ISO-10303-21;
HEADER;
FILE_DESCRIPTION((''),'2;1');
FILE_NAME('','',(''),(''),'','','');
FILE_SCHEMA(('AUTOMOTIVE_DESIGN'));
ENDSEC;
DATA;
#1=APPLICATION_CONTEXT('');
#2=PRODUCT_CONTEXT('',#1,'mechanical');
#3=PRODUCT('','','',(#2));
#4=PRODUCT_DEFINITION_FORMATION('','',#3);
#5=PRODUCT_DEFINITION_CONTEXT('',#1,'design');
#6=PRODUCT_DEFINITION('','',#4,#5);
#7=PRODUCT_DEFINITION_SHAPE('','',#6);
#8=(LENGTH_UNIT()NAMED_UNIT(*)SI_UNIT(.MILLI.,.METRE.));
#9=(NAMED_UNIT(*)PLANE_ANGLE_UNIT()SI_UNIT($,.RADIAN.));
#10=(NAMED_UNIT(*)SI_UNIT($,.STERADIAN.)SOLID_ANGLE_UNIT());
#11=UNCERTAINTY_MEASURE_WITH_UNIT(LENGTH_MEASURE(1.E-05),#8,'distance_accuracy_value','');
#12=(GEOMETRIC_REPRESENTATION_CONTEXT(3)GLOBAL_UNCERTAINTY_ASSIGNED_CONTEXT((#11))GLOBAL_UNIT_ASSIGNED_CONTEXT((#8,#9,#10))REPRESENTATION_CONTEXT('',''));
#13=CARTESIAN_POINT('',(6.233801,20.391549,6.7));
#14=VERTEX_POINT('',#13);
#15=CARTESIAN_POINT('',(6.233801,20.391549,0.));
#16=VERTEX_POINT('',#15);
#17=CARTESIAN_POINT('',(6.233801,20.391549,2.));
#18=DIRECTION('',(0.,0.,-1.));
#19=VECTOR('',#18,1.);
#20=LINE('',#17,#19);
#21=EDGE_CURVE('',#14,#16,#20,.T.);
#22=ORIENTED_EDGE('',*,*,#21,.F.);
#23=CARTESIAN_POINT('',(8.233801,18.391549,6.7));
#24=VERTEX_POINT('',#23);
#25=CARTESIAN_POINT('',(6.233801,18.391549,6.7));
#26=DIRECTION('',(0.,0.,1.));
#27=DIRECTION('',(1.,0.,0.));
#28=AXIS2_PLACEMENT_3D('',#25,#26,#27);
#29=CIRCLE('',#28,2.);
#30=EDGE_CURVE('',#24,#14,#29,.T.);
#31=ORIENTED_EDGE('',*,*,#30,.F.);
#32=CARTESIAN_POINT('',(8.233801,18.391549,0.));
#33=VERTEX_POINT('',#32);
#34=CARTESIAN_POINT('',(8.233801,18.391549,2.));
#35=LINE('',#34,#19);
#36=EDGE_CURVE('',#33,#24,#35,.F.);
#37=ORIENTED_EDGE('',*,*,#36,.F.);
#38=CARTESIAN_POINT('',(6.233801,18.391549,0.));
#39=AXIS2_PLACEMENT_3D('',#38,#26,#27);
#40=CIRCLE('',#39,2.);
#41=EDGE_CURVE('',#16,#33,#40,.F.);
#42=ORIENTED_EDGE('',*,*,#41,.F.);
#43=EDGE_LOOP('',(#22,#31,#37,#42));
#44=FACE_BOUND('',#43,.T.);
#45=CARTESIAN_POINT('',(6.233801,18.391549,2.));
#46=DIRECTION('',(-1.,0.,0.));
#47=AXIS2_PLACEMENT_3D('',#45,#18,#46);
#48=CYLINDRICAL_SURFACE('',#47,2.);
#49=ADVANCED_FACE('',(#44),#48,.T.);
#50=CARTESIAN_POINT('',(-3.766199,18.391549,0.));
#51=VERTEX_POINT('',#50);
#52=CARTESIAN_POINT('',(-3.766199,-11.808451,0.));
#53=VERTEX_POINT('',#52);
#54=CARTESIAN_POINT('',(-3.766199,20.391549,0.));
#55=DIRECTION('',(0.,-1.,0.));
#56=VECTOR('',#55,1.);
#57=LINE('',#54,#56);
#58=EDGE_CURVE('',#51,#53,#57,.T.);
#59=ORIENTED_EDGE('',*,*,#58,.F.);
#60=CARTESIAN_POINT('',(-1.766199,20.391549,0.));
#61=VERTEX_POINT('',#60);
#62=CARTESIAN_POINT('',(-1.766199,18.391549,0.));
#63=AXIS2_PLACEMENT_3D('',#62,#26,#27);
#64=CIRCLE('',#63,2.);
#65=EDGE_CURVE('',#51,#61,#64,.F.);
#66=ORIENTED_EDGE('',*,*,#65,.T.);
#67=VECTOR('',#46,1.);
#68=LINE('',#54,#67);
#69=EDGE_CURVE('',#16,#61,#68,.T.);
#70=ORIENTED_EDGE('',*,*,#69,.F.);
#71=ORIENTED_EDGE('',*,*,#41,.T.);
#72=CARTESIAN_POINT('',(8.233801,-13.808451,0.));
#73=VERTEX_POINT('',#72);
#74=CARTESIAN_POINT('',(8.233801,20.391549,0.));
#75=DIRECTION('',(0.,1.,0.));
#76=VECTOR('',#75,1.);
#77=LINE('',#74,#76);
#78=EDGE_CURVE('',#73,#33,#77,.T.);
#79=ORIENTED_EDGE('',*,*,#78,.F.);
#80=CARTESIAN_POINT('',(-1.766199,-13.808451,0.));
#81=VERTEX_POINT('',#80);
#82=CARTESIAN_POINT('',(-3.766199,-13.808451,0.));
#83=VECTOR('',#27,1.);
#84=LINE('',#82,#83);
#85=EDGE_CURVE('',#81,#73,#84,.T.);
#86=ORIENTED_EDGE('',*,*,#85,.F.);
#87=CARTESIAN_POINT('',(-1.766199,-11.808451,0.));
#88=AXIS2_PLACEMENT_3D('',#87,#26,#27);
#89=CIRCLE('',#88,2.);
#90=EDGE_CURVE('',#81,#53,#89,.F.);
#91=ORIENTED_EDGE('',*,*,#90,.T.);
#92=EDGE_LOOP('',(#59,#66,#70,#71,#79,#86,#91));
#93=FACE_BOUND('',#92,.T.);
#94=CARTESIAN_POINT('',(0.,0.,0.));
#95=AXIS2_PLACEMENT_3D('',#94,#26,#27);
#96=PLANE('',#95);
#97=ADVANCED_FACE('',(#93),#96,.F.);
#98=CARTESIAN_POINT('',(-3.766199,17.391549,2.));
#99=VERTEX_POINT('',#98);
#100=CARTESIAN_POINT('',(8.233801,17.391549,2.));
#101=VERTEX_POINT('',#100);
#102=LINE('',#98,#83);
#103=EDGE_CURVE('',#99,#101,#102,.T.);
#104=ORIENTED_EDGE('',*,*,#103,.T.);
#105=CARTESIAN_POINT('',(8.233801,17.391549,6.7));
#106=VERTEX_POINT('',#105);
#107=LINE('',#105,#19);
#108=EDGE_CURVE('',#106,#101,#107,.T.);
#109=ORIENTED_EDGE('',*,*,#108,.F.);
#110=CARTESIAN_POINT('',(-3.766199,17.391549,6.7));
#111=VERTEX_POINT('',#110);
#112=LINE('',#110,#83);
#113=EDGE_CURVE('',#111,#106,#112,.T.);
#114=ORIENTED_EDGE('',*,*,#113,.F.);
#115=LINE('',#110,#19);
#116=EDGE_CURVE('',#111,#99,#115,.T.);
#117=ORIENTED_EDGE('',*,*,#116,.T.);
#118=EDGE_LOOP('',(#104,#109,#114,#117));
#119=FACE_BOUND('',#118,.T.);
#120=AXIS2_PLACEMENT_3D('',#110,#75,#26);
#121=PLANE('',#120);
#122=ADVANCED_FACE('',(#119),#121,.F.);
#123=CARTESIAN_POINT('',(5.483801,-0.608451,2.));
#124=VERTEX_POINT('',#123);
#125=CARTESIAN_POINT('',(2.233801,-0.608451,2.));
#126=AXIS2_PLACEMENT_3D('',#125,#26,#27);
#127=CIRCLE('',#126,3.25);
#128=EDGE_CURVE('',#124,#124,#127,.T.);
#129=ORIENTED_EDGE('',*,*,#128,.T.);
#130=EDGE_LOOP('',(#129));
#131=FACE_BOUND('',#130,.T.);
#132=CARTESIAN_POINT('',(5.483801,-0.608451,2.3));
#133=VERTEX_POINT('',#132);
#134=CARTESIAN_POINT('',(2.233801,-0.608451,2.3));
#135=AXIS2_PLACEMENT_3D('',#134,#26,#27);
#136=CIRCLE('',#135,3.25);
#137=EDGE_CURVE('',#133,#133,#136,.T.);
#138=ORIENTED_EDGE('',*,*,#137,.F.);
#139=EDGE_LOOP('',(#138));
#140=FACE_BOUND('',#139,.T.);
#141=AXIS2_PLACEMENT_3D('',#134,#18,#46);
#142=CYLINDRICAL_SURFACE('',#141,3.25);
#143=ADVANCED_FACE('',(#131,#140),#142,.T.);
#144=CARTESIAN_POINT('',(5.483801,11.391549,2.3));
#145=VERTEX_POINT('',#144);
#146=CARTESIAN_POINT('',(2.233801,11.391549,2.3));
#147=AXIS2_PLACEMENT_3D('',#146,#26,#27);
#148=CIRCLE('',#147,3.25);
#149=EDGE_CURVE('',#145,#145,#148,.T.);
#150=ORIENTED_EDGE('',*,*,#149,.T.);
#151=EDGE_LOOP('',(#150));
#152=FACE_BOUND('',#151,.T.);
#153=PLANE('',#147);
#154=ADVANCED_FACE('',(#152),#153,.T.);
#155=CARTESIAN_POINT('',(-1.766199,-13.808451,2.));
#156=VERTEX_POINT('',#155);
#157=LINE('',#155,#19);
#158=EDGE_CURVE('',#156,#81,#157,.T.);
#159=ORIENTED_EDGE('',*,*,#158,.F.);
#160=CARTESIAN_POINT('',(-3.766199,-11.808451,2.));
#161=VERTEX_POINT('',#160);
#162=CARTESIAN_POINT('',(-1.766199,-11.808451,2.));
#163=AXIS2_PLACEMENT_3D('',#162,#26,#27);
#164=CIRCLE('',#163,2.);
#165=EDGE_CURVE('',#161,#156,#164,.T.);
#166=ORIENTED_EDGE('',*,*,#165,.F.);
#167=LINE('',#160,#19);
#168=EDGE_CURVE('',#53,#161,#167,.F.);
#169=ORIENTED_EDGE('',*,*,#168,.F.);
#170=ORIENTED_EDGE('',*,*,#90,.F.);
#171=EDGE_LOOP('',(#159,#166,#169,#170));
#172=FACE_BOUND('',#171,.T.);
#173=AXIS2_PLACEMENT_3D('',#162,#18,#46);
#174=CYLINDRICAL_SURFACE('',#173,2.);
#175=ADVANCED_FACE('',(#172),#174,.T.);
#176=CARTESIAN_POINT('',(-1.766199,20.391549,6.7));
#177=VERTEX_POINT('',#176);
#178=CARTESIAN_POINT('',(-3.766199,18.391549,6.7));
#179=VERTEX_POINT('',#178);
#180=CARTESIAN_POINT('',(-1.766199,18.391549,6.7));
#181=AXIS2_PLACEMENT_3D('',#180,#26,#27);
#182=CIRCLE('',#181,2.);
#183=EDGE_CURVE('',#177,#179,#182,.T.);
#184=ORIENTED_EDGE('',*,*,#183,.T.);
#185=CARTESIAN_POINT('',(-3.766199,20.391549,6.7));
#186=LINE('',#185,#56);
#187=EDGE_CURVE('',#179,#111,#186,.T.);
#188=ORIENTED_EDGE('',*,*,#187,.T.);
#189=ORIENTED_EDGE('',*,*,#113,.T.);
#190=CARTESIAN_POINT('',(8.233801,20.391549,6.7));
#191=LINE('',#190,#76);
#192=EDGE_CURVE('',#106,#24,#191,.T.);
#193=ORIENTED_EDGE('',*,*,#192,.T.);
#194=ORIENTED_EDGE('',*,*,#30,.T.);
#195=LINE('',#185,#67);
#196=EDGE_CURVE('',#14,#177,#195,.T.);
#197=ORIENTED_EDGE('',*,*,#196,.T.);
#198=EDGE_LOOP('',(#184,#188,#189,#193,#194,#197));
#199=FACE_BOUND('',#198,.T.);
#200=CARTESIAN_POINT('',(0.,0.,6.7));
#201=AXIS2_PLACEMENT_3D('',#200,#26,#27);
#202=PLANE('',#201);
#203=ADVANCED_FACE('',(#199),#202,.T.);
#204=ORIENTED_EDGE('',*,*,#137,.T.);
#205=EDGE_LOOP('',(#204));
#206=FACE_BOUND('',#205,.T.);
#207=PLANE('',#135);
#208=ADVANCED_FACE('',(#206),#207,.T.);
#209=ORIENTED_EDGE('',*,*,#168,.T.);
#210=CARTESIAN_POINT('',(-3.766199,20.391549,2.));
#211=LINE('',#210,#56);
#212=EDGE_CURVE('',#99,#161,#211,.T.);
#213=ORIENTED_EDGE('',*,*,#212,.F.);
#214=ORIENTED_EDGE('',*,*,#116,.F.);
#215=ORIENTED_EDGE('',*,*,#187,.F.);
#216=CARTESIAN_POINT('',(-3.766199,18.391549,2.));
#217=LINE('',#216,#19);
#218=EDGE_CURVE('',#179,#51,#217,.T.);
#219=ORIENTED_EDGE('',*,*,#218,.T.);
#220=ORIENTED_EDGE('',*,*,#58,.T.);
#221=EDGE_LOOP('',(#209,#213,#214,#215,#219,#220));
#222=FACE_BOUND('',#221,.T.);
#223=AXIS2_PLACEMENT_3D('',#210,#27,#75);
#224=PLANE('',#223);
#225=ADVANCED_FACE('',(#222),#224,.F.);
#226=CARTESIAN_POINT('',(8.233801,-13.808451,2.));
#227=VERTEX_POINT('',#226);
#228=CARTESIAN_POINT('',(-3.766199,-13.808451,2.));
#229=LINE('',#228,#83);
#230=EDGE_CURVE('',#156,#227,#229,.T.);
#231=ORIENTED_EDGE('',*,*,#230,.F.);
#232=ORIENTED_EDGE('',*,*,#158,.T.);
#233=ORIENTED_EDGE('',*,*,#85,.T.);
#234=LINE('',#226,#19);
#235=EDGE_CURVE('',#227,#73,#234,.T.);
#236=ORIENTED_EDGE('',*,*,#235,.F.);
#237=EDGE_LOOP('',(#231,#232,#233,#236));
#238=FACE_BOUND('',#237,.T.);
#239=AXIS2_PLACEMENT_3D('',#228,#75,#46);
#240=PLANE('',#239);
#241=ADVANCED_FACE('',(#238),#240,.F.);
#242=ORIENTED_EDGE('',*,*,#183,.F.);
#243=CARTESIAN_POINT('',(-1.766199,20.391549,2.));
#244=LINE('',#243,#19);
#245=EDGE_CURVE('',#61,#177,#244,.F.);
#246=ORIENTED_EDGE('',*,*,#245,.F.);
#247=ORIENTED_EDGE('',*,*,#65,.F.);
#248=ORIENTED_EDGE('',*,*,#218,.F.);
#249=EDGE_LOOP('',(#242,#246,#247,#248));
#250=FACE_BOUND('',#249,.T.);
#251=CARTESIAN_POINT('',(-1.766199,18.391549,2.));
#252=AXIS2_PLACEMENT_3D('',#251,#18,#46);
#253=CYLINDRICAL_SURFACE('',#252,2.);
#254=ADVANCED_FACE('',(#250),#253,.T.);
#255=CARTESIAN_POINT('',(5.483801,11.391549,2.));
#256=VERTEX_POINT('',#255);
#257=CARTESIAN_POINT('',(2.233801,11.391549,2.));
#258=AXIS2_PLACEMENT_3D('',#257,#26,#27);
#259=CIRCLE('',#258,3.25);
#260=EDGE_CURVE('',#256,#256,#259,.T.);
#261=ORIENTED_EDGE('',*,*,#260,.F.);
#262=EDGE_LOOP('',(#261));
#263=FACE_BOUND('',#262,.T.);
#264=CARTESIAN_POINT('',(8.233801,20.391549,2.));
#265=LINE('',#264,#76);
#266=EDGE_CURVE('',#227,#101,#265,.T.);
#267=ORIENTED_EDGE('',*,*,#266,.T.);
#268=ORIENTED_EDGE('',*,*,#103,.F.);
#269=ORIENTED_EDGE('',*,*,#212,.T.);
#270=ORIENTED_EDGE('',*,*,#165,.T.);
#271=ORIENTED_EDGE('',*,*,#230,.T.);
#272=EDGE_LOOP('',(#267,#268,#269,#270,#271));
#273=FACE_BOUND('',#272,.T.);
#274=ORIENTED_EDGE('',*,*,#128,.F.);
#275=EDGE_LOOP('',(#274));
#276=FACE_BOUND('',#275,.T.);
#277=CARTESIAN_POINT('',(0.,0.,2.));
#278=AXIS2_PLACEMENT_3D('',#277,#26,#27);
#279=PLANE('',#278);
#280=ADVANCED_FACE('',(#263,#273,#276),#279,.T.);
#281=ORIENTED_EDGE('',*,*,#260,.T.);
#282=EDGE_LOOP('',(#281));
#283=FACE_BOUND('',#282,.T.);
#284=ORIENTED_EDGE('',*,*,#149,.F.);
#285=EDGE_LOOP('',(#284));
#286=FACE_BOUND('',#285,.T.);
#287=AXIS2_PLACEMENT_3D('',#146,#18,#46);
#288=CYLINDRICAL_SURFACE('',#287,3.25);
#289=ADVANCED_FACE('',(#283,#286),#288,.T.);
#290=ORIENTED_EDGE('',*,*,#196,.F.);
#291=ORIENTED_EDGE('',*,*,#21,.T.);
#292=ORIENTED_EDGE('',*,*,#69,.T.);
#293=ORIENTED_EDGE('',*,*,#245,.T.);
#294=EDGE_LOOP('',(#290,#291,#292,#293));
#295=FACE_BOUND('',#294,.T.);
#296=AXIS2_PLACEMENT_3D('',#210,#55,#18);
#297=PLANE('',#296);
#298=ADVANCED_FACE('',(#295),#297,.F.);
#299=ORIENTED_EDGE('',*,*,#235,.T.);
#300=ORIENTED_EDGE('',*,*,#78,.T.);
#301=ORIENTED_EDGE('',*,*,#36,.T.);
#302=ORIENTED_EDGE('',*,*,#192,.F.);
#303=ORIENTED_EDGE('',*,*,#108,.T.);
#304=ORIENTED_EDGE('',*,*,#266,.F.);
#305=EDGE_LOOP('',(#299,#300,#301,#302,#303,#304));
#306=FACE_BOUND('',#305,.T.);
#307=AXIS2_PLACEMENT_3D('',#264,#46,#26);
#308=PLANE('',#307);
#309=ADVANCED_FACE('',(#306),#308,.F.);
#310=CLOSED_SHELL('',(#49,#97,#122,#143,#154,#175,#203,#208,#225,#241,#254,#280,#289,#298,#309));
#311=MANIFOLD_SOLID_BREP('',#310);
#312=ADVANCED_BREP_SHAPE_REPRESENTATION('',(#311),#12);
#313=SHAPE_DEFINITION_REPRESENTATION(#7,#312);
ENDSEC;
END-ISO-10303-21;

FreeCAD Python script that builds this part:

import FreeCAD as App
import Part
import Sketcher
from FreeCAD import Vector


def edges_at(feature, points):
    """Names of the edges that pass closest to the given points."""
    edges = feature.Shape.Edges
    near = lambda p: min(range(len(edges)), key=lambda i: edges[i].distToShape(Part.Vertex(*p))[0])
    return sorted({f"Edge{near(p) + 1}" for p in points})

doc = App.newDocument("Part")
body = doc.addObject("PartDesign::Body", "Body")

sketch1 = doc.addObject("Sketcher::SketchObject", "Sketch")
body.addObject(sketch1)
sketch1.AttachmentSupport = (doc.XY_Plane, [""])
sketch1.MapMode = "FlatFace"
sketch1.addGeometry(Part.LineSegment(Vector(-4, 20, 0), Vector(-4, -14, 0)), False)
sketch1.addGeometry(Part.LineSegment(Vector(-4, -14, 0), Vector(8, -14, 0)), False)
sketch1.addGeometry(Part.LineSegment(Vector(8, -14, 0), Vector(8, 20, 0)), False)
sketch1.addGeometry(Part.LineSegment(Vector(8, 20, 0), Vector(-4, 20, 0)), False)
sketch1.addConstraint(Sketcher.Constraint("Coincident", 0, 2, 1, 1))
sketch1.addConstraint(Sketcher.Constraint("Coincident", 1, 2, 2, 1))
sketch1.addConstraint(Sketcher.Constraint("Coincident", 2, 2, 3, 1))
sketch1.addConstraint(Sketcher.Constraint("Coincident", 3, 2, 0, 1))
sketch1.addConstraint(Sketcher.Constraint("Vertical", 0))
sketch1.addConstraint(Sketcher.Constraint("Horizontal", 1))
sketch1.addConstraint(Sketcher.Constraint("Vertical", 2))
sketch1.addConstraint(Sketcher.Constraint("Horizontal", 3))
sketch1.addConstraint(Sketcher.Constraint("DistanceX", 1, 1, 1, 2, 12.0))
sketch1.addConstraint(Sketcher.Constraint("DistanceY", 0, 2, 0, 1, 34.2))
sketch1.addConstraint(Sketcher.Constraint("DistanceX", 0, 2, -1, 1, 3.766199))
sketch1.addConstraint(Sketcher.Constraint("DistanceY", 0, 2, -1, 1, 13.808451))
pad1 = doc.addObject("PartDesign::Pad", "Pad")
body.addObject(pad1)
pad1.Profile = sketch1
pad1.Length = 2

sketch2 = doc.addObject("Sketcher::SketchObject", "Sketch001")
body.addObject(sketch2)
sketch2.AttachmentSupport = (doc.XY_Plane, [""])
sketch2.MapMode = "FlatFace"
sketch2.AttachmentOffset = App.Placement(Vector(0, 0, 2), App.Rotation())
sketch2.addGeometry(Part.Circle(Vector(2.2, 11.4, 0), Vector(0, 0, 1), 3.2), False)
sketch2.addGeometry(Part.Circle(Vector(2.2, -0.6, 0), Vector(0, 0, 1), 3.2), False)
sketch2.addConstraint(Sketcher.Constraint("Equal", 0, 1))
sketch2.addConstraint(Sketcher.Constraint("Vertical", 0, 3, 1, 3))
sketch2.addConstraint(Sketcher.Constraint("Diameter", 0, 6.5))
sketch2.addConstraint(Sketcher.Constraint("DistanceY", 1, 3, 0, 3, 12.0))
sketch2.addConstraint(Sketcher.Constraint("DistanceX", -1, 1, 0, 3, 2.233801))
sketch2.addConstraint(Sketcher.Constraint("DistanceY", -1, 1, 0, 3, 11.391549))
pad2 = doc.addObject("PartDesign::Pad", "Pad001")
body.addObject(pad2)
pad2.Profile = sketch2
pad2.Length = 0.3

sketch3 = doc.addObject("Sketcher::SketchObject", "Sketch002")
body.addObject(sketch3)
sketch3.AttachmentSupport = (doc.XY_Plane, [""])
sketch3.MapMode = "FlatFace"
sketch3.AttachmentOffset = App.Placement(Vector(0, 0, 2), App.Rotation())
sketch3.addGeometry(Part.LineSegment(Vector(-3.8, 20.4, 0), Vector(-3.8, 17.4, 0)), False)
sketch3.addGeometry(Part.LineSegment(Vector(-3.8, 17.4, 0), Vector(8.2, 17.4, 0)), False)
sketch3.addGeometry(Part.LineSegment(Vector(8.2, 17.4, 0), Vector(8.2, 20.4, 0)), False)
sketch3.addGeometry(Part.LineSegment(Vector(8.2, 20.4, 0), Vector(-3.8, 20.4, 0)), False)
sketch3.addConstraint(Sketcher.Constraint("Coincident", 0, 2, 1, 1))
sketch3.addConstraint(Sketcher.Constraint("Coincident", 1, 2, 2, 1))
sketch3.addConstraint(Sketcher.Constraint("Coincident", 2, 2, 3, 1))
sketch3.addConstraint(Sketcher.Constraint("Coincident", 3, 2, 0, 1))
sketch3.addConstraint(Sketcher.Constraint("Vertical", 0))
sketch3.addConstraint(Sketcher.Constraint("Horizontal", 1))
sketch3.addConstraint(Sketcher.Constraint("Vertical", 2))
sketch3.addConstraint(Sketcher.Constraint("Horizontal", 3))
sketch3.addConstraint(Sketcher.Constraint("DistanceX", 1, 1, 1, 2, 12.0))
sketch3.addConstraint(Sketcher.Constraint("DistanceY", 0, 2, 0, 1, 3.0))
sketch3.addConstraint(Sketcher.Constraint("DistanceX", 0, 2, -1, 1, 3.766199))
sketch3.addConstraint(Sketcher.Constraint("DistanceY", -1, 1, 0, 2, 17.391549))
pad3 = doc.addObject("PartDesign::Pad", "Pad002")
body.addObject(pad3)
pad3.Profile = sketch3
pad3.Length = 4.7
doc.recompute()

fillet = doc.addObject("PartDesign::Fillet", "Fillet")
body.addObject(fillet)
fillet.Base = (pad3, edges_at(pad3, [(-3.766, 20.392, 3.35), (8.234, 20.392, 3.35), (-3.766, -13.808, 1)]))
fillet.Radius = 2

doc.recompute()
